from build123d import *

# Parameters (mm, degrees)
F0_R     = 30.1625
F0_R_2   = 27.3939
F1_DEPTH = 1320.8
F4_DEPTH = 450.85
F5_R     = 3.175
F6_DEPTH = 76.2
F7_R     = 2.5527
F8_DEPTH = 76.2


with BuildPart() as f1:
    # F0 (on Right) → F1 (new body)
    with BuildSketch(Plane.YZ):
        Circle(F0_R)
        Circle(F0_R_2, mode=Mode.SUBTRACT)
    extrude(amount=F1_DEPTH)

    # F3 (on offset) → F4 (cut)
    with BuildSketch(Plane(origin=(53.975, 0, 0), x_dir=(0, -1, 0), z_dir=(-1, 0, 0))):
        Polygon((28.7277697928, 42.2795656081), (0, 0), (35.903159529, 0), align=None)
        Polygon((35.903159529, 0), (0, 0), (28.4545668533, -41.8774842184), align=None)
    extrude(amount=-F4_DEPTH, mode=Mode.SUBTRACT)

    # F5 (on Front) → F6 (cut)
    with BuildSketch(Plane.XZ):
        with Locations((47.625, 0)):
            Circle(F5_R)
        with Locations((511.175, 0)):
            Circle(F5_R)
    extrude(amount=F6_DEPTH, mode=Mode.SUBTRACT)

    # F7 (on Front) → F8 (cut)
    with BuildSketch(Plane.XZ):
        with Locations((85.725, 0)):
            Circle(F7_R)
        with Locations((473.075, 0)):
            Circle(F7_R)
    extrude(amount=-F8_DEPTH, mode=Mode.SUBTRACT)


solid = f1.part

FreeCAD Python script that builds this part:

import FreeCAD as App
import Part
import Sketcher
Q = App.Units.Quantity


def add_polygon(sketch, points):
    """Adds a closed chain of lines whose ends are joined by coincident constraints."""
    first, n = sketch.GeometryCount, len(points)
    for a, b in zip(points, points[1:] + points[:1]):
        sketch.addGeometry(Part.LineSegment(App.Vector(*a, 0), App.Vector(*b, 0)), False)
    for i in range(n):
        sketch.addConstraint(Sketcher.Constraint("Coincident", first + i, 2, first + (i + 1) % n, 1))

doc = App.newDocument("Part")
body = doc.addObject("PartDesign::Body", "Body")

sketch1 = body.newObject("Sketcher::SketchObject", "Sketch")
sketch1.AttachmentSupport = (doc.getObject("YZ_Plane"), [""])
sketch1.MapMode = "FlatFace"
sketch1.addGeometry(Part.Circle(App.Vector(0, 0, 0), App.Vector(0, 0, 1), 30), False)
sketch1.addGeometry(Part.Circle(App.Vector(0, 0, 0), App.Vector(0, 0, 1), 27), False)
sketch1.addConstraint(Sketcher.Constraint("Coincident", 0, 3, -1, 1))
sketch1.addConstraint(Sketcher.Constraint("Coincident", 1, 3, -1, 1))
sketch1.addConstraint(Sketcher.Constraint("Diameter", 0, Q("2.375 in")))
sketch1.addConstraint(Sketcher.Constraint("Diameter", 1, Q("2.157 in")))
pad1 = body.newObject("PartDesign::Pad", "Pad")
pad1.Profile = sketch1
pad1.Length = Q("52 in")

sketch2 = body.newObject("Sketcher::SketchObject", "Sketch001")
sketch2.AttachmentSupport = (doc.getObject("YZ_Plane"), [""])
sketch2.MapMode = "FlatFace"
sketch2.AttachmentOffset = App.Placement(App.Vector(0, 0, 2.125 * 25.4), App.Rotation())
add_polygon(sketch2, [(-29, 42), (0, 0), (-28, -42), (-36, 0)])
sketch2.addConstraint(Sketcher.Constraint("Coincident", 0, 2, -1, 1))
sketch2.addConstraint(Sketcher.Constraint("PointOnObject", 2, 2, -1))
sketch2.addConstraint(Sketcher.Constraint("Distance", 0, 51.116009))
sketch2.addConstraint(Sketcher.Constraint("Distance", 3, 42.884122))
sketch2.addConstraint(Sketcher.Constraint("DistanceX", 2, 2, -1, 1, 35.90316))
sketch2.addConstraint(Sketcher.Constraint("DistanceY", 1, 2, 3, 2, 84.15705))
sketch2.addConstraint(Sketcher.Constraint("Distance", 1, 50.629893))
pocket1 = body.newObject("PartDesign::Pocket", "Pocket")
pocket1.Profile = sketch2
pocket1.Length = Q("17.75 in")
pocket1.Reversed = True

sketch3 = body.newObject("Sketcher::SketchObject", "Sketch002")
sketch3.AttachmentSupport = (doc.getObject("XZ_Plane"), [""])
sketch3.MapMode = "FlatFace"
sketch3.addGeometry(Part.Circle(App.Vector(47.6, 0, 0), App.Vector(0, 0, 1), 3.2), False)
sketch3.addGeometry(Part.Circle(App.Vector(511.2, 0, 0), App.Vector(0, 0, 1), 3.2), False)
sketch3.addConstraint(Sketcher.Constraint("Equal", 0, 1))
sketch3.addConstraint(Sketcher.Constraint("PointOnObject", 0, 3, -1))
sketch3.addConstraint(Sketcher.Constraint("PointOnObject", 1, 3, -1))
sketch3.addConstraint(Sketcher.Constraint("Diameter", 0, Q("0.25 in")))
sketch3.addConstraint(Sketcher.Constraint("DistanceX", 0, 3, 1, 3, Q("18.25 in")))
sketch3.addConstraint(Sketcher.Constraint("DistanceX", -1, 1, 0, 3, Q("1.875 in")))
pocket2 = body.newObject("PartDesign::Pocket", "Pocket001")
pocket2.Profile = sketch3
pocket2.Length = Q("3 in")
pocket2.Reversed = True

sketch4 = body.newObject("Sketcher::SketchObject", "Sketch003")
sketch4.AttachmentSupport = (doc.getObject("XZ_Plane"), [""])
sketch4.MapMode = "FlatFace"
sketch4.addGeometry(Part.Circle(App.Vector(85.7, 0, 0), App.Vector(0, 0, 1), 2.6), False)
sketch4.addGeometry(Part.Circle(App.Vector(473.1, 0, 0), App.Vector(0, 0, 1), 2.6), False)
sketch4.addConstraint(Sketcher.Constraint("Equal", 0, 1))
sketch4.addConstraint(Sketcher.Constraint("PointOnObject", 0, 3, -1))
sketch4.addConstraint(Sketcher.Constraint("PointOnObject", 1, 3, -1))
sketch4.addConstraint(Sketcher.Constraint("Diameter", 0, Q("0.201 in")))
sketch4.addConstraint(Sketcher.Constraint("DistanceX", 0, 3, 1, 3, Q("15.25 in")))
sketch4.addConstraint(Sketcher.Constraint("DistanceX", -1, 1, 0, 3, Q("3.375 in")))
pocket3 = body.newObject("PartDesign::Pocket", "Pocket002")
pocket3.Profile = sketch4
pocket3.Length = Q("3 in")

doc.recompute()
